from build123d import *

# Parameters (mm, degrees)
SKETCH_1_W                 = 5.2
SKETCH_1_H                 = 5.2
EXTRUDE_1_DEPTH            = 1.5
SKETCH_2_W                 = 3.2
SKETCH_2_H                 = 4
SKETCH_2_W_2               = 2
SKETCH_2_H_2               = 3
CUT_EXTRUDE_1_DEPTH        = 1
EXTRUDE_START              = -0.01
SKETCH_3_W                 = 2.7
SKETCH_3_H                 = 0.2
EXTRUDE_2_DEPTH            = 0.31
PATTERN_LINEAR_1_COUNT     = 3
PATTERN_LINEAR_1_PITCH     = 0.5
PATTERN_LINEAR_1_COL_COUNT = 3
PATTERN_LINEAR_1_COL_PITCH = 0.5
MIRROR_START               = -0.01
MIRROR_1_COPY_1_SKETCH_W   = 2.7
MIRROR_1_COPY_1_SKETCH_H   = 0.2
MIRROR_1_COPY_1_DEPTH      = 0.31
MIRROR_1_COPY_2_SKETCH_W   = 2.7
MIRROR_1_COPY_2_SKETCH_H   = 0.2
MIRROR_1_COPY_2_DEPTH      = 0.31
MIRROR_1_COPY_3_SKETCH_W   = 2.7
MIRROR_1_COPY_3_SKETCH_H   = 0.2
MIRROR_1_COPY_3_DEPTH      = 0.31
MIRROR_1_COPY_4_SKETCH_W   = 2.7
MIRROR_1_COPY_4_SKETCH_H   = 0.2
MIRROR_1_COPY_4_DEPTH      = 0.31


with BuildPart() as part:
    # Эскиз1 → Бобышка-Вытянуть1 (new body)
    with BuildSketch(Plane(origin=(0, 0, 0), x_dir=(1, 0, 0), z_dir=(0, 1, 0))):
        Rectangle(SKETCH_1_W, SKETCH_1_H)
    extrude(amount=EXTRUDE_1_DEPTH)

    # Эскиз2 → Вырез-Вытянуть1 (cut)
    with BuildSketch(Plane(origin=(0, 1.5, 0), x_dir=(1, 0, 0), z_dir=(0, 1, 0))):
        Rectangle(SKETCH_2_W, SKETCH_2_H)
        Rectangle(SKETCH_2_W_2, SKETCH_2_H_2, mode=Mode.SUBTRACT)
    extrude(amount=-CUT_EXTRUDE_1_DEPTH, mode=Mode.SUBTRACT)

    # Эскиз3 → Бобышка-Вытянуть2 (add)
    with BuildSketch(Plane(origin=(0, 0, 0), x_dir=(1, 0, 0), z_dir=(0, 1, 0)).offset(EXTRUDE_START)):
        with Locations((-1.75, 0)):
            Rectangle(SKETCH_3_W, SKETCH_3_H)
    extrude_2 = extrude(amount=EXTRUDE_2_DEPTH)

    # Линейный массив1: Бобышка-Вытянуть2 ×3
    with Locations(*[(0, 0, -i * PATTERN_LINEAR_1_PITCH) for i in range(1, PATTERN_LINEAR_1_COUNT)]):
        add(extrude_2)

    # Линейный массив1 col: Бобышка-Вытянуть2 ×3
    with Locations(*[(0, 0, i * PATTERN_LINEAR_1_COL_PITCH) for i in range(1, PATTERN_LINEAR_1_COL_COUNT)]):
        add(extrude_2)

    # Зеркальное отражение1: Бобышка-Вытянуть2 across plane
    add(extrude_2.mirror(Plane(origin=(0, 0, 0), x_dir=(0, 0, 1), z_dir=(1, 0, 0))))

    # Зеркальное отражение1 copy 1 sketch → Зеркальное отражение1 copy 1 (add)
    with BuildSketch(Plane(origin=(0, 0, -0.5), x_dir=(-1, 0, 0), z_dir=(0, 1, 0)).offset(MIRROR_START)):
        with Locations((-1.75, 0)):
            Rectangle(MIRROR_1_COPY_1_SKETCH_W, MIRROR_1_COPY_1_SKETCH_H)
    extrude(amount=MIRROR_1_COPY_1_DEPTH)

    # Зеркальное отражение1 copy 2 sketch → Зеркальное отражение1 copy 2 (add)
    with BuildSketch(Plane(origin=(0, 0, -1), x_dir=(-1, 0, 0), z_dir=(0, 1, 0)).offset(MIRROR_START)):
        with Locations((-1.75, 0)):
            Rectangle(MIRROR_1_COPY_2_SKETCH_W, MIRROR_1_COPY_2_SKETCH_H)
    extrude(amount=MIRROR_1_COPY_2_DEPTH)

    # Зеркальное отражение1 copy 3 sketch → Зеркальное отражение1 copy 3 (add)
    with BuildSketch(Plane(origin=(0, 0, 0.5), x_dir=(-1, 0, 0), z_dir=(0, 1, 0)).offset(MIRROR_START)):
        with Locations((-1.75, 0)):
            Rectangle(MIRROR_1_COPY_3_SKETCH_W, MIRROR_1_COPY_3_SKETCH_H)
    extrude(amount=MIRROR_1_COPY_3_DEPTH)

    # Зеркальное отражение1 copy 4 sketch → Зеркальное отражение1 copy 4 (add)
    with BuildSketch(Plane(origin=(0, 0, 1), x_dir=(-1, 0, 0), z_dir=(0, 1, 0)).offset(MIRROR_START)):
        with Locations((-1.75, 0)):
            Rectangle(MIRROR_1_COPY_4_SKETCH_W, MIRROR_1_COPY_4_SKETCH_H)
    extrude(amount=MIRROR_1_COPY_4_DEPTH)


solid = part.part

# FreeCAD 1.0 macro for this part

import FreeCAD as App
import Part
import Sketcher

V = App.Vector
Q = App.Units.Quantity


def add_polygon(sketch, points):
    """Adds a closed chain of lines whose ends are joined by coincident constraints."""
    first, n = sketch.GeometryCount, len(points)
    for a, b in zip(points, points[1:] + points[:1]):
        sketch.addGeometry(Part.LineSegment(App.Vector(*a, 0), App.Vector(*b, 0)), False)
    for i in range(n):
        sketch.addConstraint(Sketcher.Constraint("Coincident", first + i, 2, first + (i + 1) % n, 1))

doc = App.newDocument("Part")
params = doc.addObject("Spreadsheet::Sheet", "Params")
for row, (alias, value) in enumerate([
    ("sketch1_width", "5.2 mm"),
    ("pad1_length", "1.5 mm"),
    ("sketch2_width", "2 mm"),
    ("sketch2_height", "4 mm"),
    ("sketch2_height2", "3 mm"),
    ("sketch2_width2", "3.2 mm"),
    ("pocket1_length", "1 mm"),
    ("sketch3_width", "2.7 mm"),
    ("sketch3_height", "0.2 mm"),
    ("pad2_length", "0.31 mm"),
    ("linearpattern_pitch", "0.5 mm"),
    ("linearpattern2_pitch", "0.5 mm"),
    ("sketch4_width", "2.7 mm"),
    ("sketch4_height", "0.2 mm"),
    ("pad3_length", "0.31 mm"),
    ("sketch5_width", "2.7 mm"),
    ("sketch5_height", "0.2 mm"),
    ("pad4_length", "0.31 mm"),
    ("sketch6_width", "2.7 mm"),
    ("sketch6_height", "0.2 mm"),
    ("pad5_length", "0.31 mm"),
    ("sketch7_width", "2.7 mm"),
    ("sketch7_height", "0.2 mm"),
    ("pad6_length", "0.31 mm"),
], start=1):
    params.set(f"A{row}", alias)
    params.set(f"B{row}", "=" + value)
    params.setAlias(f"B{row}", alias)

body = doc.addObject("PartDesign::Body", "Body")

# Sketch on XZ plane
sketch1 = body.newObject("Sketcher::SketchObject", "Sketch")
sketch1.AttachmentSupport = (doc.getObject("XZ_Plane"), [""])
sketch1.MapMode = "FlatFace"
add_polygon(sketch1, [(-3, -3), (-3, 3), (3, 3), (3, -3)])  # lines 0-3
sketch1.addConstraint([
    Sketcher.Constraint("Vertical", 0),
    Sketcher.Constraint("Horizontal", 1),
    Sketcher.Constraint("Vertical", 2),
    Sketcher.Constraint("Horizontal", 3),
    Sketcher.Constraint("Symmetric", 0, 2, 2, 2, -1, 1),
    Sketcher.Constraint("Equal", 3, 0),
    Sketcher.Constraint("DistanceX", 1, 1, 1, 2, Q("5.2 mm")),
])
sketch1.setExpression("Constraints[10]", "Params.sketch1_width")
pad1 = body.newObject("PartDesign::Pad", "Pad")
pad1.Profile = sketch1
pad1.setExpression("Length", "Params.pad1_length")
pad1.Reversed = True

# Sketch on XZ plane
sketch2 = body.newObject("Sketcher::SketchObject", "Sketch001")
sketch2.AttachmentSupport = (doc.getObject("XZ_Plane"), [""])
sketch2.MapMode = "FlatFace"
sketch2.AttachmentOffset = App.Placement(V(0, 0, -1.5), App.Rotation())
add_polygon(sketch2, [(-1.6, -2), (-1.6, 2), (1.6, 2), (1.6, -2)])  # lines 0-3
add_polygon(sketch2, [(1, 1.5), (-1, 1.5), (-1, -1.5), (1, -1.5)])  # lines 4-7
sketch2.addConstraint([
    Sketcher.Constraint("Vertical", 0),
    Sketcher.Constraint("Horizontal", 1),
    Sketcher.Constraint("Vertical", 2),
    Sketcher.Constraint("Horizontal", 3),
    Sketcher.Constraint("Horizontal", 4),
    Sketcher.Constraint("Vertical", 5),
    Sketcher.Constraint("Horizontal", 6),
    Sketcher.Constraint("Vertical", 7),
    Sketcher.Constraint("Symmetric", 0, 2, 2, 2, -1, 1),
    Sketcher.Constraint("Symmetric", 4, 2, 6, 2, -1, 1),
    Sketcher.Constraint("DistanceX", 4, 2, 4, 1, Q("2 mm")),
    Sketcher.Constraint("DistanceY", 0, 1, 0, 2, Q("4 mm")),
    Sketcher.Constraint("DistanceY", 5, 2, 5, 1, Q("3 mm")),
    Sketcher.Constraint("DistanceX", 1, 1, 1, 2, Q("3.2 mm")),
])
sketch2.setExpression("Constraints[18]", "Params.sketch2_width")
sketch2.setExpression("Constraints[19]", "Params.sketch2_height")
sketch2.setExpression("Constraints[20]", "Params.sketch2_height2")
sketch2.setExpression("Constraints[21]", "Params.sketch2_width2")
pocket1 = body.newObject("PartDesign::Pocket", "Pocket")
pocket1.Profile = sketch2
pocket1.setExpression("Length", "Params.pocket1_length")
pocket1.Reversed = True

# Sketch on XZ plane
sketch3 = body.newObject("Sketcher::SketchObject", "Sketch002")
sketch3.AttachmentSupport = (doc.getObject("XZ_Plane"), [""])
sketch3.MapMode = "FlatFace"
sketch3.AttachmentOffset = App.Placement(V(0, 0, 0.01), App.Rotation())
add_polygon(sketch3, [(-3.1, -0.1), (-3.1, 0.1), (-0.4, 0.1), (-0.4, -0.1)])  # lines 0-3
sketch3.addConstraint([
    Sketcher.Constraint("Vertical", 0),
    Sketcher.Constraint("Horizontal", 1),
    Sketcher.Constraint("Vertical", 2),
    Sketcher.Constraint("Horizontal", 3),
    Sketcher.Constraint("DistanceX", 1, 1, 1, 2, Q("2.7 mm")),
    Sketcher.Constraint("DistanceY", 0, 1, 0, 2, Q("0.2 mm")),
    Sketcher.Constraint("DistanceX", 0, 2, -1, 1, Q("3.1 mm")),
    Sketcher.Constraint("DistanceY", -1, 1, 0, 2, Q("0.1 mm")),
])
sketch3.setExpression("Constraints[8]", "Params.sketch3_width")
sketch3.setExpression("Constraints[9]", "Params.sketch3_height")
pad2 = body.newObject("PartDesign::Pad", "Pad001")
pad2.Profile = sketch3
pad2.setExpression("Length", "Params.pad2_length")
pad2.Reversed = True
doc.recompute()

linearpattern = body.newObject("PartDesign::LinearPattern", "LinearPattern")
linearpattern.Originals = [pad2]
linearpattern.Direction = (doc.getObject("Z_Axis"), [""])
linearpattern.Mode = "offset"
linearpattern.setExpression("Offset", "Params.linearpattern_pitch")
linearpattern.Occurrences = 3
linearpattern.Reversed = True
body.Tip = linearpattern
doc.recompute()

linearpattern2 = body.newObject("PartDesign::LinearPattern", "LinearPattern001")
linearpattern2.Originals = [pad2]
linearpattern2.Direction = (doc.getObject("Z_Axis"), [""])
linearpattern2.Mode = "offset"
linearpattern2.setExpression("Offset", "Params.linearpattern2_pitch")
linearpattern2.Occurrences = 3
body.Tip = linearpattern2
doc.recompute()

mirrored = body.newObject("PartDesign::Mirrored", "Mirrored")
mirrored.Originals = [pad2]
mirrored.MirrorPlane = (doc.getObject("YZ_Plane"), [""])
body.Tip = mirrored

# Sketch on XZ plane
sketch4 = body.newObject("Sketcher::SketchObject", "Sketch003")
sketch4.AttachmentSupport = (doc.getObject("XZ_Plane"), [""])
sketch4.MapMode = "FlatFace"
sketch4.AttachmentOffset = App.Placement(V(0, 0, 0.01), App.Rotation())
add_polygon(sketch4, [(3.1, -0.4), (3.1, -0.6), (0.4, -0.6), (0.4, -0.4)])  # lines 0-3
sketch4.addConstraint([
    Sketcher.Constraint("Vertical", 0),
    Sketcher.Constraint("Horizontal", 1),
    Sketcher.Constraint("Vertical", 2),
    Sketcher.Constraint("Horizontal", 3),
    Sketcher.Constraint("DistanceX", 1, 2, 1, 1, Q("2.7 mm")),
    Sketcher.Constraint("DistanceY", 0, 2, 0, 1, Q("0.2 mm")),
    Sketcher.Constraint("DistanceX", -1, 1, 0, 2, Q("3.1 mm")),
    Sketcher.Constraint("DistanceY", 0, 2, -1, 1, Q("0.6 mm")),
])
sketch4.setExpression("Constraints[8]", "Params.sketch4_width")
sketch4.setExpression("Constraints[9]", "Params.sketch4_height")
pad3 = body.newObject("PartDesign::Pad", "Pad002")
pad3.Profile = sketch4
pad3.setExpression("Length", "Params.pad3_length")
pad3.Reversed = True

# Sketch on XZ plane
sketch5 = body.newObject("Sketcher::SketchObject", "Sketch004")
sketch5.AttachmentSupport = (doc.getObject("XZ_Plane"), [""])
sketch5.MapMode = "FlatFace"
sketch5.AttachmentOffset = App.Placement(V(0, 0, 0.01), App.Rotation())
add_polygon(sketch5, [(3.1, -0.9), (3.1, -1.1), (0.4, -1.1), (0.4, -0.9)])  # lines 0-3
sketch5.addConstraint([
    Sketcher.Constraint("Vertical", 0),
    Sketcher.Constraint("Horizontal", 1),
    Sketcher.Constraint("Vertical", 2),
    Sketcher.Constraint("Horizontal", 3),
    Sketcher.Constraint("DistanceX", 1, 2, 1, 1, Q("2.7 mm")),
    Sketcher.Constraint("DistanceY", 0, 2, 0, 1, Q("0.2 mm")),
    Sketcher.Constraint("DistanceX", -1, 1, 0, 2, Q("3.1 mm")),
    Sketcher.Constraint("DistanceY", 0, 2, -1, 1, Q("1.1 mm")),
])
sketch5.setExpression("Constraints[8]", "Params.sketch5_width")
sketch5.setExpression("Constraints[9]", "Params.sketch5_height")
pad4 = body.newObject("PartDesign::Pad", "Pad003")
pad4.Profile = sketch5
pad4.setExpression("Length", "Params.pad4_length")
pad4.Reversed = True

# Sketch on XZ plane
sketch6 = body.newObject("Sketcher::SketchObject", "Sketch005")
sketch6.AttachmentSupport = (doc.getObject("XZ_Plane"), [""])
sketch6.MapMode = "FlatFace"
sketch6.AttachmentOffset = App.Placement(V(0, 0, 0.01), App.Rotation())
add_polygon(sketch6, [(3.1, 0.6), (3.1, 0.4), (0.4, 0.4), (0.4, 0.6)])  # lines 0-3
sketch6.addConstraint([
    Sketcher.Constraint("Vertical", 0),
    Sketcher.Constraint("Horizontal", 1),
    Sketcher.Constraint("Vertical", 2),
    Sketcher.Constraint("Horizontal", 3),
    Sketcher.Constraint("DistanceX", 1, 2, 1, 1, Q("2.7 mm")),
    Sketcher.Constraint("DistanceY", 0, 2, 0, 1, Q("0.2 mm")),
    Sketcher.Constraint("DistanceX", -1, 1, 0, 2, Q("3.1 mm")),
    Sketcher.Constraint("DistanceY", -1, 1, 0, 2, Q("0.4 mm")),
])
sketch6.setExpression("Constraints[8]", "Params.sketch6_width")
sketch6.setExpression("Constraints[9]", "Params.sketch6_height")
pad5 = body.newObject("PartDesign::Pad", "Pad004")
pad5.Profile = sketch6
pad5.setExpression("Length", "Params.pad5_length")
pad5.Reversed = True

# Sketch on XZ plane
sketch7 = body.newObject("Sketcher::SketchObject", "Sketch006")
sketch7.AttachmentSupport = (doc.getObject("XZ_Plane"), [""])
sketch7.MapMode = "FlatFace"
sketch7.AttachmentOffset = App.Placement(V(0, 0, 0.01), App.Rotation())
add_polygon(sketch7, [(3.1, 1.1), (3.1, 0.9), (0.4, 0.9), (0.4, 1.1)])  # lines 0-3
sketch7.addConstraint([
    Sketcher.Constraint("Vertical", 0),
    Sketcher.Constraint("Horizontal", 1),
    Sketcher.Constraint("Vertical", 2),
    Sketcher.Constraint("Horizontal", 3),
    Sketcher.Constraint("DistanceX", 1, 2, 1, 1, Q("2.7 mm")),
    Sketcher.Constraint("DistanceY", 0, 2, 0, 1, Q("0.2 mm")),
    Sketcher.Constraint("DistanceX", -1, 1, 0, 2, Q("3.1 mm")),
    Sketcher.Constraint("DistanceY", -1, 1, 0, 2, Q("0.9 mm")),
])
sketch7.setExpression("Constraints[8]", "Params.sketch7_width")
sketch7.setExpression("Constraints[9]", "Params.sketch7_height")
pad6 = body.newObject("PartDesign::Pad", "Pad005")
pad6.Profile = sketch7
pad6.setExpression("Length", "Params.pad6_length")
pad6.Reversed = True

doc.recompute()
